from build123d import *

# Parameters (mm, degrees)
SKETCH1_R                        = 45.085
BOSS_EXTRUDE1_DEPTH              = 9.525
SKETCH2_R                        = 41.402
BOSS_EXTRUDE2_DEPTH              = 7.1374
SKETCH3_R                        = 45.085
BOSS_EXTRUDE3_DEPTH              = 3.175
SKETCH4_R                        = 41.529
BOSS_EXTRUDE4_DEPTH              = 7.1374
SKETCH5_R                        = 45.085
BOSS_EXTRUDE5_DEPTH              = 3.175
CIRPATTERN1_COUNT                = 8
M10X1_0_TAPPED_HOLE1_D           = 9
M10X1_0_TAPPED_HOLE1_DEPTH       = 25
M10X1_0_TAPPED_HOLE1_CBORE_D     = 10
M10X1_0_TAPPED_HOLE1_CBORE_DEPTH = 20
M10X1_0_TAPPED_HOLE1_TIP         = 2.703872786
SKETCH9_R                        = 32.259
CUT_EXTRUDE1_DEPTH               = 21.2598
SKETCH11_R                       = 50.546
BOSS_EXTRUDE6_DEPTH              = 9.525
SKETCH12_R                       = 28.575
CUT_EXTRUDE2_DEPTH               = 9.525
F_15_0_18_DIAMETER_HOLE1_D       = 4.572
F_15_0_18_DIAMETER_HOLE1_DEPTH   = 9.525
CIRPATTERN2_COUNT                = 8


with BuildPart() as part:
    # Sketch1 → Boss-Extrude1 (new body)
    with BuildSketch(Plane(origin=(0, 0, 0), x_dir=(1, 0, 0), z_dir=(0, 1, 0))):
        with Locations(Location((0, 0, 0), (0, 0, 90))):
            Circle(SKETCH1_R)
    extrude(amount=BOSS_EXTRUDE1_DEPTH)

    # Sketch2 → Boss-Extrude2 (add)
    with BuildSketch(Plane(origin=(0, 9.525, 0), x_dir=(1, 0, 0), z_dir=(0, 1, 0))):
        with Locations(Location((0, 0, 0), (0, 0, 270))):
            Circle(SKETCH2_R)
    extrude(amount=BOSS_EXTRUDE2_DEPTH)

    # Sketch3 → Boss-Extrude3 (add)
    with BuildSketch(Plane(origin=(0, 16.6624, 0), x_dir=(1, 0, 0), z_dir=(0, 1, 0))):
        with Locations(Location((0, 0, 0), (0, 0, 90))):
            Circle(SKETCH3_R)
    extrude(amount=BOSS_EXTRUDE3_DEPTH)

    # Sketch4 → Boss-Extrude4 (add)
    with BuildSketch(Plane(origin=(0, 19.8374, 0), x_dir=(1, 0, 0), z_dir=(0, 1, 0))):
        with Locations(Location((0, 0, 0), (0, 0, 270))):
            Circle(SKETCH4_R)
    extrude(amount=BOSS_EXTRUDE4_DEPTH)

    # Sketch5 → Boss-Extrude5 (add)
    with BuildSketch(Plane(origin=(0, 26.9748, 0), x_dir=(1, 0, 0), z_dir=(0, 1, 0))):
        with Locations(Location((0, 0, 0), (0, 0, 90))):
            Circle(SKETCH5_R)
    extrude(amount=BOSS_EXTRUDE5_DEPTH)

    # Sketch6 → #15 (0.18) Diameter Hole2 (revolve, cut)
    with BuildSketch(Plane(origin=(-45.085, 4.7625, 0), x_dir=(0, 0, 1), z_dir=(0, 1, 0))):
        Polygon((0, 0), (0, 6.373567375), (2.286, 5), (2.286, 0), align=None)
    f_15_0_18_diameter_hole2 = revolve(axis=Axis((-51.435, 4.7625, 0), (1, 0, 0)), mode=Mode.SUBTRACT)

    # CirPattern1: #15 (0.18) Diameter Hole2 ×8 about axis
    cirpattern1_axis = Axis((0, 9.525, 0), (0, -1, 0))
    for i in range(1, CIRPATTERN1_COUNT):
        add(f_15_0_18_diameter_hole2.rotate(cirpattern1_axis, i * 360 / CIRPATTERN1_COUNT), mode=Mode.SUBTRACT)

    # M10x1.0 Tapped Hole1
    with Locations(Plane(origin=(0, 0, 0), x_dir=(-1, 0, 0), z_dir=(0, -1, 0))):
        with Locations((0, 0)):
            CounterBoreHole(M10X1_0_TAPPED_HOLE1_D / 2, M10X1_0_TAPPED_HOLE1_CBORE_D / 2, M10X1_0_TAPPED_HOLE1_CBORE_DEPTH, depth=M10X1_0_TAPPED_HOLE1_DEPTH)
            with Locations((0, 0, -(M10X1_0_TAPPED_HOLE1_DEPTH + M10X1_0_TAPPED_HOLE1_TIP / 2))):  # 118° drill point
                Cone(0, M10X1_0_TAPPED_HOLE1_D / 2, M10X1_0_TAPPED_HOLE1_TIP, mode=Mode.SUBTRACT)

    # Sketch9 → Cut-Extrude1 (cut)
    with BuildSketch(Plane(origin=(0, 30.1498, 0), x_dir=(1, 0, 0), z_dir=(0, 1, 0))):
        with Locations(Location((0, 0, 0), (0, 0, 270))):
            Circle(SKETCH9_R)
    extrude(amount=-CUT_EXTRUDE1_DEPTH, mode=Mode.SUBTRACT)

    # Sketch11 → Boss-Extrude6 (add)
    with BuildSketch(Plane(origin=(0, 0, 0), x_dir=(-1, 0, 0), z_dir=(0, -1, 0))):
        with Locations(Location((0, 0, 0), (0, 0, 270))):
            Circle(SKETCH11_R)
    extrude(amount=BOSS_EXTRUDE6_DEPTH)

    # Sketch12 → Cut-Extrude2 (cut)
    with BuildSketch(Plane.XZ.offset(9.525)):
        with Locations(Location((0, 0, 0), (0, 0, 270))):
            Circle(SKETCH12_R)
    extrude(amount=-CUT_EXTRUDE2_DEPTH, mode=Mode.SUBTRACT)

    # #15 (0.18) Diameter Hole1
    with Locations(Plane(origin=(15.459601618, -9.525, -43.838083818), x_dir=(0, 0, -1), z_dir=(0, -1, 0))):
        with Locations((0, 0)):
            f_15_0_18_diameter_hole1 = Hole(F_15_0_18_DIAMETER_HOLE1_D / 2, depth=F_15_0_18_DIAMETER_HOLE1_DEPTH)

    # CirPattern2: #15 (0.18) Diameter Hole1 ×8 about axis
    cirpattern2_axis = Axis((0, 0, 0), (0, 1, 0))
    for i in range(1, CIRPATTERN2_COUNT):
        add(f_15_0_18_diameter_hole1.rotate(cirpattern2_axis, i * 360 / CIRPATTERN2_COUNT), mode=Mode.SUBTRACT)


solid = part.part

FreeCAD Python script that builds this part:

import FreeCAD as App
import Part
import Sketcher
from FreeCAD import Vector
Q = App.Units.Quantity

doc = App.newDocument("Part")
body = doc.addObject("PartDesign::Body", "Body")

# Sketch on XZ plane
sketch1 = body.newObject("Sketcher::SketchObject", "Sketch")
sketch1.AttachmentSupport = (doc.getObject("XZ_Plane"), [""])
sketch1.MapMode = "FlatFace"
sketch1.addGeometry(Part.Circle(Vector(0, 0, 0), Vector(0, 0, 1), 45), False)
sketch1.addConstraint([
    Sketcher.Constraint("Coincident", 0, 3, -1, 1),
    Sketcher.Constraint("Diameter", 0, Q("3.55 in")),
])
pad1 = body.newObject("PartDesign::Pad", "Pad")
pad1.Profile = sketch1
pad1.Length = Q("0.375 in")
pad1.Reversed = True

# Sketch on XZ plane
sketch2 = body.newObject("Sketcher::SketchObject", "Sketch001")
sketch2.AttachmentSupport = (doc.getObject("XZ_Plane"), [""])
sketch2.MapMode = "FlatFace"
sketch2.AttachmentOffset = App.Placement(Vector(0, 0, -0.375 * 25.4), App.Rotation())
sketch2.addGeometry(Part.Circle(Vector(0, 0, 0), Vector(0, 0, 1), 41), False)
sketch2.addConstraint([
    Sketcher.Constraint("Coincident", 0, 3, -1, 1),
    Sketcher.Constraint("Diameter", 0, Q("3.26 in")),
])
pad2 = body.newObject("PartDesign::Pad", "Pad001")
pad2.Profile = sketch2
pad2.Length = Q("0.281 in")
pad2.Reversed = True

# Sketch on XZ plane
sketch3 = body.newObject("Sketcher::SketchObject", "Sketch002")
sketch3.AttachmentSupport = (doc.getObject("XZ_Plane"), [""])
sketch3.MapMode = "FlatFace"
sketch3.AttachmentOffset = App.Placement(Vector(0, 0, -0.656 * 25.4), App.Rotation())
sketch3.addGeometry(Part.Circle(Vector(0, 0, 0), Vector(0, 0, 1), 45), False)
sketch3.addConstraint([
    Sketcher.Constraint("Coincident", 0, 3, -1, 1),
    Sketcher.Constraint("Diameter", 0, Q("3.55 in")),
])
pad3 = body.newObject("PartDesign::Pad", "Pad002")
pad3.Profile = sketch3
pad3.Length = Q("0.125 in")
pad3.Reversed = True

# Sketch on XZ plane
sketch4 = body.newObject("Sketcher::SketchObject", "Sketch003")
sketch4.AttachmentSupport = (doc.getObject("XZ_Plane"), [""])
sketch4.MapMode = "FlatFace"
sketch4.AttachmentOffset = App.Placement(Vector(0, 0, -0.781 * 25.4), App.Rotation())
sketch4.addGeometry(Part.Circle(Vector(0, 0, 0), Vector(0, 0, 1), 42), False)
sketch4.addConstraint([
    Sketcher.Constraint("Coincident", 0, 3, -1, 1),
    Sketcher.Constraint("Diameter", 0, Q("3.27 in")),
])
pad4 = body.newObject("PartDesign::Pad", "Pad003")
pad4.Profile = sketch4
pad4.Length = Q("0.281 in")
pad4.Reversed = True

# Sketch on XZ plane
sketch5 = body.newObject("Sketcher::SketchObject", "Sketch004")
sketch5.AttachmentSupport = (doc.getObject("XZ_Plane"), [""])
sketch5.MapMode = "FlatFace"
sketch5.AttachmentOffset = App.Placement(Vector(0, 0, -1.062 * 25.4), App.Rotation())
sketch5.addGeometry(Part.Circle(Vector(0, 0, 0), Vector(0, 0, 1), 45), False)
sketch5.addConstraint([
    Sketcher.Constraint("Coincident", 0, 3, -1, 1),
    Sketcher.Constraint("Diameter", 0, Q("3.55 in")),
])
pad5 = body.newObject("PartDesign::Pad", "Pad004")
pad5.Profile = sketch5
pad5.Length = Q("0.125 in")
pad5.Reversed = True

# Sketch on XZ plane
sketch6 = body.newObject("Sketcher::SketchObject", "Sketch005")
sketch6.AttachmentSupport = (doc.getObject("XZ_Plane"), [""])
sketch6.MapMode = "FlatFace"
sketch6.AttachmentOffset = App.Placement(Vector(0, 0, -0.1875 * 25.4), App.Rotation())
sketch6.addGeometry([
    Part.LineSegment(Vector(-38.7, 0, 0), Vector(-45.1, 0, 0)),
    Part.LineSegment(Vector(-45.1, 0, 0), Vector(-45.1, 2.3, 0)),
    Part.LineSegment(Vector(-45.1, 2.3, 0), Vector(-40.1, 2.3, 0)),
    Part.LineSegment(Vector(-40.1, 2.3, 0), Vector(-38.7, 0, 0)),
], False)
sketch6.addConstraint([
    Sketcher.Constraint("Coincident", 0, 2, 1, 1),
    Sketcher.Constraint("Coincident", 1, 2, 2, 1),
    Sketcher.Constraint("Coincident", 2, 2, 3, 1),
    Sketcher.Constraint("Coincident", 3, 2, 0, 1),
    Sketcher.Constraint("Horizontal", 0),
    Sketcher.Constraint("Vertical", 1),
    Sketcher.Constraint("Horizontal", 2),
    Sketcher.Constraint("PointOnObject", 0, 2, -1),
    Sketcher.Constraint("Angle", 3, Q("-59 deg")),
    Sketcher.Constraint("DistanceY", 1, 1, 1, 2, Q("0.09 in")),
    Sketcher.Constraint("DistanceX", 0, 2, -1, 1, Q("1.775 in")),
    Sketcher.Constraint("DistanceX", 2, 1, 2, 2, 5.0),
])
groove = body.newObject("PartDesign::Groove", "Groove")
groove.Profile = sketch6
groove.ReferenceAxis = (sketch6, ["H_Axis"])
groove.Angle = 360
doc.recompute()

polarpattern = body.newObject("PartDesign::PolarPattern", "PolarPattern")
polarpattern.Originals = [groove]
polarpattern.Axis = (doc.getObject("Y_Axis"), [""])
polarpattern.Angle = 360
polarpattern.Occurrences = 8
body.Tip = polarpattern

# Sketch on XZ plane
sketch7 = body.newObject("Sketcher::SketchObject", "Sketch006")
sketch7.AttachmentSupport = (doc.getObject("XZ_Plane"), [""])
sketch7.MapMode = "FlatFace"
sketch7.addGeometry(Part.Circle(Vector(0, 0, 0), Vector(0, 0, 1), 4.5), False)
sketch7.addConstraint([
    Sketcher.Constraint("Coincident", 0, 3, -1, 1),
    Sketcher.Constraint("Diameter", 0, 9.0),
])
doc.recompute()
hole = body.newObject("PartDesign::Hole", "Hole")
hole.Profile = sketch7
hole.ThreadType = "None"
hole.Diameter = 9
hole.DepthType = "Dimension"
hole.Depth = 25
hole.DrillPoint = "Angled"
hole.DrillPointAngle = 118
hole.HoleCutType = "Counterbore"
hole.HoleCutDiameter = 10
hole.HoleCutDepth = 20

# Sketch on XZ plane
sketch8 = body.newObject("Sketcher::SketchObject", "Sketch007")
sketch8.AttachmentSupport = (doc.getObject("XZ_Plane"), [""])
sketch8.MapMode = "FlatFace"
sketch8.AttachmentOffset = App.Placement(Vector(0, 0, -1.187 * 25.4), App.Rotation())
sketch8.addGeometry(Part.Circle(Vector(0, 0, 0), Vector(0, 0, 1), 32), False)
sketch8.addConstraint([
    Sketcher.Constraint("Coincident", 0, 3, -1, 1),
    Sketcher.Constraint("Diameter", 0, 64.518),
])
pocket1 = body.newObject("PartDesign::Pocket", "Pocket")
pocket1.Profile = sketch8
pocket1.Length = Q("0.837 in")
pocket1.Reversed = True

# Sketch on XZ plane
sketch9 = body.newObject("Sketcher::SketchObject", "Sketch008")
sketch9.AttachmentSupport = (doc.getObject("XZ_Plane"), [""])
sketch9.MapMode = "FlatFace"
sketch9.addGeometry(Part.Circle(Vector(0, 0, 0), Vector(0, 0, 1), 51), False)
sketch9.addConstraint([
    Sketcher.Constraint("Coincident", 0, 3, -1, 1),
    Sketcher.Constraint("Diameter", 0, Q("3.98 in")),
])
pad6 = body.newObject("PartDesign::Pad", "Pad005")
pad6.Profile = sketch9
pad6.Length = Q("0.375 in")

# Sketch on XZ plane
sketch10 = body.newObject("Sketcher::SketchObject", "Sketch009")
sketch10.AttachmentSupport = (doc.getObject("XZ_Plane"), [""])
sketch10.MapMode = "FlatFace"
sketch10.AttachmentOffset = App.Placement(Vector(0, 0, 0.375 * 25.4), App.Rotation())
sketch10.addGeometry(Part.Circle(Vector(0, 0, 0), Vector(0, 0, 1), 29), False)
sketch10.addConstraint([
    Sketcher.Constraint("Coincident", 0, 3, -1, 1),
    Sketcher.Constraint("Diameter", 0, Q("2.25 in")),
])
pocket2 = body.newObject("PartDesign::Pocket", "Pocket001")
pocket2.Profile = sketch10
pocket2.Length = Q("0.375 in")

# Sketch on XZ plane
sketch11 = body.newObject("Sketcher::SketchObject", "Sketch010")
sketch11.AttachmentSupport = (doc.getObject("XZ_Plane"), [""])
sketch11.MapMode = "FlatFace"
sketch11.AttachmentOffset = App.Placement(Vector(0, 0, 0.375 * 25.4), App.Rotation())
sketch11.addGeometry(Part.Circle(Vector(15.5, -43.8, 0), Vector(0, 0, 1), 2.3), False)
sketch11.addConstraint([
    Sketcher.Constraint("Diameter", 0, Q("0.18 in")),
    Sketcher.Constraint("DistanceX", -1, 1, 0, 3, 15.459602),
    Sketcher.Constraint("DistanceY", 0, 3, -1, 1, 43.838084),
])
doc.recompute()
hole2 = body.newObject("PartDesign::Hole", "Hole001")
hole2.Profile = sketch11
hole2.ThreadType = "None"
hole2.Diameter = Q("0.18 in")
hole2.DepthType = "Dimension"
hole2.Depth = Q("0.375 in")
hole2.DrillPoint = "Flat"
doc.recompute()

polarpattern2 = body.newObject("PartDesign::PolarPattern", "PolarPattern001")
polarpattern2.Originals = [hole2]
polarpattern2.Axis = (doc.getObject("Y_Axis"), [""])
polarpattern2.Angle = 360
polarpattern2.Occurrences = 8
body.Tip = polarpattern2

doc.recompute()
